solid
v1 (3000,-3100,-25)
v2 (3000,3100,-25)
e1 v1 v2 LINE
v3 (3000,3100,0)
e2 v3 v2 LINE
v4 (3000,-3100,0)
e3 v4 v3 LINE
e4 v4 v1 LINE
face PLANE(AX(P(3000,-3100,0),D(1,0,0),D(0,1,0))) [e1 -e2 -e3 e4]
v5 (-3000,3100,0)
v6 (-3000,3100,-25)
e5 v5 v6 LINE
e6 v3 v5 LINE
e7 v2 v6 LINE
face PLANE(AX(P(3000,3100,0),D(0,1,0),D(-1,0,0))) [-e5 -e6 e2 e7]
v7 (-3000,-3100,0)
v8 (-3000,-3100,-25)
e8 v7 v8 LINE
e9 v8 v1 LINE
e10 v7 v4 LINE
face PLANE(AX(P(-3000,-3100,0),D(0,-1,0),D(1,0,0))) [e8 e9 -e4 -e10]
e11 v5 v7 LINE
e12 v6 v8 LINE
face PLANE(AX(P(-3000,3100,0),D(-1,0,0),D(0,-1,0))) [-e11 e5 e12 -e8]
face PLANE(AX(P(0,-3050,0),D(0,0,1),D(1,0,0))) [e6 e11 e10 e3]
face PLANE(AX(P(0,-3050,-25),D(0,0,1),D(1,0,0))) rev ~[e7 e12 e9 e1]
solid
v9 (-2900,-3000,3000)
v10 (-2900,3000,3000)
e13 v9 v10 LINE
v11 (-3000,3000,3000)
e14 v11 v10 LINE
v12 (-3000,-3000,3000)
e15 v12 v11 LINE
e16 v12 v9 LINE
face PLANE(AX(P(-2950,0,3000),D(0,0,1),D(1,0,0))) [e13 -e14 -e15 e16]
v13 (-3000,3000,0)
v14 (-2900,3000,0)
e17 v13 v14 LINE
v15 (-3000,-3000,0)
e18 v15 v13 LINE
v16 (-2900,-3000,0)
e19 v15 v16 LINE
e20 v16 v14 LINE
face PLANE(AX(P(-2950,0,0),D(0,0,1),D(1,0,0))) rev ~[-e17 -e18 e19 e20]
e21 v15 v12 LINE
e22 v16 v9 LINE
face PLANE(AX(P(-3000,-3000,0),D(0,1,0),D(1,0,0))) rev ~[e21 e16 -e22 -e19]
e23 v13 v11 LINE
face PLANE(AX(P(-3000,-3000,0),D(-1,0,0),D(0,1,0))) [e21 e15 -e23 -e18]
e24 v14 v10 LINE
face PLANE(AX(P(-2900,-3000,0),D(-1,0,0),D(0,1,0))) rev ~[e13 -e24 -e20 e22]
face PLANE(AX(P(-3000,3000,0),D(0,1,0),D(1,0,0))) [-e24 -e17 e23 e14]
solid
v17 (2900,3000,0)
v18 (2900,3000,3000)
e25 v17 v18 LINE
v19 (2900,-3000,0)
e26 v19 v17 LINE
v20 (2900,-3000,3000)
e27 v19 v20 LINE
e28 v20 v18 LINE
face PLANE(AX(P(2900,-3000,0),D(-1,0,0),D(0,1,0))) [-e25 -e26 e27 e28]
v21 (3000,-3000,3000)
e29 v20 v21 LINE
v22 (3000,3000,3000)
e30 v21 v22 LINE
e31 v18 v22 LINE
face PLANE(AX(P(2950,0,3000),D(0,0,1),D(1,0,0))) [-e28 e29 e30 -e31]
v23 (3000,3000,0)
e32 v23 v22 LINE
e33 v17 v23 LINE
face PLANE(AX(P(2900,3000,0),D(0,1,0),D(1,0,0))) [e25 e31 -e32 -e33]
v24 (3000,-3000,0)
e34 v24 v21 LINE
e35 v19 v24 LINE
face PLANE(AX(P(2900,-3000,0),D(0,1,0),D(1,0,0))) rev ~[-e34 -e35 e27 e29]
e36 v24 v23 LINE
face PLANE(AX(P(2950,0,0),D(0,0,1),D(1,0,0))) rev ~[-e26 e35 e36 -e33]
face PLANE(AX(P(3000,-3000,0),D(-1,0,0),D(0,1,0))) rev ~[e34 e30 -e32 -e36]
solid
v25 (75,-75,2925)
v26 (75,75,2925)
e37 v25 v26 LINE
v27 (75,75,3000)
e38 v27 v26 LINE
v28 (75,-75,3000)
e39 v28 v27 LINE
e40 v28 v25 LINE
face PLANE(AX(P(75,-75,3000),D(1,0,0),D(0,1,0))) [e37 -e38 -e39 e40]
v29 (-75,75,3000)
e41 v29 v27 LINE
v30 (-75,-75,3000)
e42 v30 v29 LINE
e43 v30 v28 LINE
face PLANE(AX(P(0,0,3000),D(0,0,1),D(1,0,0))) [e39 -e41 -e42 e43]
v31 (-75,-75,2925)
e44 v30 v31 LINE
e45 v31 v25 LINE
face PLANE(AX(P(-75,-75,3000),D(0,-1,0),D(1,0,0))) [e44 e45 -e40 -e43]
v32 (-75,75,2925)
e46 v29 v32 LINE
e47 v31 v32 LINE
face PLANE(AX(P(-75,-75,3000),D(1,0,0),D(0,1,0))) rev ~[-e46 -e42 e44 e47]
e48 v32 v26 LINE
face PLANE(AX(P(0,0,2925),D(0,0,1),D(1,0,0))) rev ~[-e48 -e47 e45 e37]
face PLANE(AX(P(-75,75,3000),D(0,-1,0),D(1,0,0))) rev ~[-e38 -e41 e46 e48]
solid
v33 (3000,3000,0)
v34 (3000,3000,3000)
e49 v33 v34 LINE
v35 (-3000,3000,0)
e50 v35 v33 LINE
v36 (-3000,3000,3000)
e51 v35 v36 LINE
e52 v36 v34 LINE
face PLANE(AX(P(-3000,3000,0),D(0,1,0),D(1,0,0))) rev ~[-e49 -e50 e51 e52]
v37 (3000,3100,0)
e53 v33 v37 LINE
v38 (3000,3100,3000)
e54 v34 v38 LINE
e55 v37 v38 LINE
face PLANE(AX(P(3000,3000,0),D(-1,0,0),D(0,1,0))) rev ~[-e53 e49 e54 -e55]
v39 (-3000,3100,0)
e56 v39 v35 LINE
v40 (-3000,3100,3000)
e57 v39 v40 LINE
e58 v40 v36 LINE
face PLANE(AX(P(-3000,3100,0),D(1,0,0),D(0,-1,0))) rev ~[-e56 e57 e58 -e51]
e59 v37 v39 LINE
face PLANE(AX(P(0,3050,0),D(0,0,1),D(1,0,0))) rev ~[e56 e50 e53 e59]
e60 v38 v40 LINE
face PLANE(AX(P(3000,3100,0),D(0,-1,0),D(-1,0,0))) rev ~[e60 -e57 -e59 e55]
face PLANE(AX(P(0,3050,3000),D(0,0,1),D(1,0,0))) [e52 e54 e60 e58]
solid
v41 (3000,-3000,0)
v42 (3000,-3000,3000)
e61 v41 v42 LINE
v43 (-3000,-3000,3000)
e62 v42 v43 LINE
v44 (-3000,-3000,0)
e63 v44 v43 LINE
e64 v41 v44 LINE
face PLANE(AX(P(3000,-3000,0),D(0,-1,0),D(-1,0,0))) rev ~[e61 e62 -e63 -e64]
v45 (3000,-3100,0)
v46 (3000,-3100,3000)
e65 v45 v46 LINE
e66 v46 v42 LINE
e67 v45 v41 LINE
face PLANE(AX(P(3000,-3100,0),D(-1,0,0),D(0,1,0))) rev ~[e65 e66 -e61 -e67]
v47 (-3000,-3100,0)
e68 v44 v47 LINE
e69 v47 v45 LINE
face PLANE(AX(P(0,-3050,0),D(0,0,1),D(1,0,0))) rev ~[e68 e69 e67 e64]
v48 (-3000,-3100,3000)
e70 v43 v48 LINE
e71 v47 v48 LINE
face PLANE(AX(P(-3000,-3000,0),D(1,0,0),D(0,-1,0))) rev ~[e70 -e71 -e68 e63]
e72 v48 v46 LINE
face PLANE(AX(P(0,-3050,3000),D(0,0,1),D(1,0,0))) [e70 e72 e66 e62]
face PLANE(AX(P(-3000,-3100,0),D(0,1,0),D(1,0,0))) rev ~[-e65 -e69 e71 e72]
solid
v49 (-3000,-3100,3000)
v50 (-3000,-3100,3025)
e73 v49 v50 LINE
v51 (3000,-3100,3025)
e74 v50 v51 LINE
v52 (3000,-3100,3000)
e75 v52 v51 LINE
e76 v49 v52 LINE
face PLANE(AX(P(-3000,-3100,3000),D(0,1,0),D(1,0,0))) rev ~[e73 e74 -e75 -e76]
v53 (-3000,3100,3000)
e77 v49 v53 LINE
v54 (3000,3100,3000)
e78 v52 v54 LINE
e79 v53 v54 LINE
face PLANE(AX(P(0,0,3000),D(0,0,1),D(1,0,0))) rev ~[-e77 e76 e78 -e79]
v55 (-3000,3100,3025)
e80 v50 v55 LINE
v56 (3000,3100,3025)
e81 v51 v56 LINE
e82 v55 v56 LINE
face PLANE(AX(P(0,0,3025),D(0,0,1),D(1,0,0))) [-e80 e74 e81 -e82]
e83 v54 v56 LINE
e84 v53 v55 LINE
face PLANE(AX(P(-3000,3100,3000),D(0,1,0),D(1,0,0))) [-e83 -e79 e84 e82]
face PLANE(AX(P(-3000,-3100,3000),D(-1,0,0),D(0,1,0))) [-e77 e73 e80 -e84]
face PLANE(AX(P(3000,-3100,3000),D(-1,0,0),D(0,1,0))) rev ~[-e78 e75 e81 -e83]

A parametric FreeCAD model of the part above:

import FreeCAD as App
import Part
import Sketcher

V = App.Vector

doc = App.newDocument("Part")
body = doc.addObject("PartDesign::Body", "Body")

# Sketch on XY plane
sketch1 = body.newObject("Sketcher::SketchObject", "Sketch")
sketch1.AttachmentSupport = (doc.getObject("XY_Plane"), [""])
sketch1.MapMode = "FlatFace"
sketch1.addGeometry(Part.LineSegment(V(-3000, 3100, 0), V(-3000, 3000, 0)), False)
sketch1.addGeometry(Part.LineSegment(V(-3000, 3000, 0), V(3000, 3000, 0)), False)
sketch1.addGeometry(Part.LineSegment(V(3000, 3000, 0), V(3000, 3100, 0)), False)
sketch1.addGeometry(Part.LineSegment(V(3000, 3100, 0), V(-3000, 3100, 0)), False)
sketch1.addConstraint(Sketcher.Constraint("Coincident", 0, 2, 1, 1))
sketch1.addConstraint(Sketcher.Constraint("Coincident", 1, 2, 2, 1))
sketch1.addConstraint(Sketcher.Constraint("Coincident", 2, 2, 3, 1))
sketch1.addConstraint(Sketcher.Constraint("Coincident", 3, 2, 0, 1))
sketch1.addConstraint(Sketcher.Constraint("Vertical", 0))
sketch1.addConstraint(Sketcher.Constraint("Horizontal", 1))
sketch1.addConstraint(Sketcher.Constraint("Vertical", 2))
sketch1.addConstraint(Sketcher.Constraint("Horizontal", 3))
sketch1.addConstraint(Sketcher.Constraint("DistanceX", 1, 1, 1, 2, 6000.0))
sketch1.addConstraint(Sketcher.Constraint("DistanceY", 0, 2, 0, 1, 100.0))
sketch1.addConstraint(Sketcher.Constraint("DistanceX", 0, 2, -1, 1, 3000.0))
sketch1.addConstraint(Sketcher.Constraint("DistanceY", -1, 1, 0, 2, 3000.0))
pad1 = body.newObject("PartDesign::Pad", "Pad")
pad1.Profile = sketch1
pad1.Length = 3000
body2 = doc.addObject("PartDesign::Body", "Body001")

# Sketch on XY plane
sketch2 = body2.newObject("Sketcher::SketchObject", "Sketch001")
sketch2.AttachmentSupport = (doc.getObject("XY_Plane001"), [""])
sketch2.MapMode = "FlatFace"
sketch2.addGeometry(Part.LineSegment(V(-3000, 3000, 0), V(-3000, -3000, 0)), False)
sketch2.addGeometry(Part.LineSegment(V(-3000, -3000, 0), V(-2900, -3000, 0)), False)
sketch2.addGeometry(Part.LineSegment(V(-2900, -3000, 0), V(-2900, 3000, 0)), False)
sketch2.addGeometry(Part.LineSegment(V(-2900, 3000, 0), V(-3000, 3000, 0)), False)
sketch2.addConstraint(Sketcher.Constraint("Coincident", 0, 2, 1, 1))
sketch2.addConstraint(Sketcher.Constraint("Coincident", 1, 2, 2, 1))
sketch2.addConstraint(Sketcher.Constraint("Coincident", 2, 2, 3, 1))
sketch2.addConstraint(Sketcher.Constraint("Coincident", 3, 2, 0, 1))
sketch2.addConstraint(Sketcher.Constraint("Vertical", 0))
sketch2.addConstraint(Sketcher.Constraint("Horizontal", 1))
sketch2.addConstraint(Sketcher.Constraint("Vertical", 2))
sketch2.addConstraint(Sketcher.Constraint("Horizontal", 3))
sketch2.addConstraint(Sketcher.Constraint("DistanceX", 1, 1, 1, 2, 100.0))
sketch2.addConstraint(Sketcher.Constraint("DistanceY", 0, 2, 0, 1, 6000.0))
sketch2.addConstraint(Sketcher.Constraint("DistanceX", 0, 2, -1, 1, 3000.0))
sketch2.addConstraint(Sketcher.Constraint("DistanceY", 0, 2, -1, 1, 3000.0))
pad2 = body2.newObject("PartDesign::Pad", "Pad001")
pad2.Profile = sketch2
pad2.Length = 3000
body3 = doc.addObject("PartDesign::Body", "Body002")

# Sketch on XY plane
sketch3 = body3.newObject("Sketcher::SketchObject", "Sketch002")
sketch3.AttachmentSupport = (doc.getObject("XY_Plane002"), [""])
sketch3.MapMode = "FlatFace"
sketch3.addGeometry(Part.LineSegment(V(-3000, -3000, 0), V(-3000, -3100, 0)), False)
sketch3.addGeometry(Part.LineSegment(V(-3000, -3100, 0), V(3000, -3100, 0)), False)
sketch3.addGeometry(Part.LineSegment(V(3000, -3100, 0), V(3000, -3000, 0)), False)
sketch3.addGeometry(Part.LineSegment(V(3000, -3000, 0), V(-3000, -3000, 0)), False)
sketch3.addConstraint(Sketcher.Constraint("Coincident", 0, 2, 1, 1))
sketch3.addConstraint(Sketcher.Constraint("Coincident", 1, 2, 2, 1))
sketch3.addConstraint(Sketcher.Constraint("Coincident", 2, 2, 3, 1))
sketch3.addConstraint(Sketcher.Constraint("Coincident", 3, 2, 0, 1))
sketch3.addConstraint(Sketcher.Constraint("Vertical", 0))
sketch3.addConstraint(Sketcher.Constraint("Horizontal", 1))
sketch3.addConstraint(Sketcher.Constraint("Vertical", 2))
sketch3.addConstraint(Sketcher.Constraint("Horizontal", 3))
sketch3.addConstraint(Sketcher.Constraint("DistanceX", 1, 1, 1, 2, 6000.0))
sketch3.addConstraint(Sketcher.Constraint("DistanceY", 0, 2, 0, 1, 100.0))
sketch3.addConstraint(Sketcher.Constraint("DistanceX", 0, 2, -1, 1, 3000.0))
sketch3.addConstraint(Sketcher.Constraint("DistanceY", 0, 2, -1, 1, 3100.0))
pad3 = body3.newObject("PartDesign::Pad", "Pad002")
pad3.Profile = sketch3
pad3.Length = 3000
body4 = doc.addObject("PartDesign::Body", "Body003")

# Sketch on XY plane
sketch4 = body4.newObject("Sketcher::SketchObject", "Sketch003")
sketch4.AttachmentSupport = (doc.getObject("XY_Plane003"), [""])
sketch4.MapMode = "FlatFace"
sketch4.addGeometry(Part.LineSegment(V(2900, 3000, 0), V(2900, -3000, 0)), False)
sketch4.addGeometry(Part.LineSegment(V(2900, -3000, 0), V(3000, -3000, 0)), False)
sketch4.addGeometry(Part.LineSegment(V(3000, -3000, 0), V(3000, 3000, 0)), False)
sketch4.addGeometry(Part.LineSegment(V(3000, 3000, 0), V(2900, 3000, 0)), False)
sketch4.addConstraint(Sketcher.Constraint("Coincident", 0, 2, 1, 1))
sketch4.addConstraint(Sketcher.Constraint("Coincident", 1, 2, 2, 1))
sketch4.addConstraint(Sketcher.Constraint("Coincident", 2, 2, 3, 1))
sketch4.addConstraint(Sketcher.Constraint("Coincident", 3, 2, 0, 1))
sketch4.addConstraint(Sketcher.Constraint("Vertical", 0))
sketch4.addConstraint(Sketcher.Constraint("Horizontal", 1))
sketch4.addConstraint(Sketcher.Constraint("Vertical", 2))
sketch4.addConstraint(Sketcher.Constraint("Horizontal", 3))
sketch4.addConstraint(Sketcher.Constraint("DistanceX", 1, 1, 1, 2, 100.0))
sketch4.addConstraint(Sketcher.Constraint("DistanceY", 0, 2, 0, 1, 6000.0))
sketch4.addConstraint(Sketcher.Constraint("DistanceX", -1, 1, 0, 2, 2900.0))
sketch4.addConstraint(Sketcher.Constraint("DistanceY", 0, 2, -1, 1, 3000.0))
pad4 = body4.newObject("PartDesign::Pad", "Pad003")
pad4.Profile = sketch4
pad4.Length = 3000
body5 = doc.addObject("PartDesign::Body", "Body004")

# Sketch on XY plane
sketch5 = body5.newObject("Sketcher::SketchObject", "Sketch004")
sketch5.AttachmentSupport = (doc.getObject("XY_Plane004"), [""])
sketch5.MapMode = "FlatFace"
sketch5.addGeometry(Part.LineSegment(V(-3000, -3100, 0), V(3000, -3100, 0)), False)
sketch5.addGeometry(Part.LineSegment(V(3000, -3100, 0), V(3000, 3100, 0)), False)
sketch5.addGeometry(Part.LineSegment(V(3000, 3100, 0), V(-3000, 3100, 0)), False)
sketch5.addGeometry(Part.LineSegment(V(-3000, 3100, 0), V(-3000, -3100, 0)), False)
sketch5.addConstraint(Sketcher.Constraint("Coincident", 0, 2, 1, 1))
sketch5.addConstraint(Sketcher.Constraint("Coincident", 1, 2, 2, 1))
sketch5.addConstraint(Sketcher.Constraint("Coincident", 2, 2, 3, 1))
sketch5.addConstraint(Sketcher.Constraint("Coincident", 3, 2, 0, 1))
sketch5.addConstraint(Sketcher.Constraint("Horizontal", 0))
sketch5.addConstraint(Sketcher.Constraint("Vertical", 1))
sketch5.addConstraint(Sketcher.Constraint("Horizontal", 2))
sketch5.addConstraint(Sketcher.Constraint("Vertical", 3))
sketch5.addConstraint(Sketcher.Constraint("Symmetric", 0, 2, 2, 2, -1, 1))
sketch5.addConstraint(Sketcher.Constraint("DistanceX", 0, 1, 0, 2, 6000.0))
sketch5.addConstraint(Sketcher.Constraint("DistanceY", 1, 1, 1, 2, 6200.0))
pad5 = body5.newObject("PartDesign::Pad", "Pad004")
pad5.Profile = sketch5
pad5.Length = 25
pad5.Reversed = True
body6 = doc.addObject("PartDesign::Body", "Body005")

# Sketch on XY plane
sketch6 = body6.newObject("Sketcher::SketchObject", "Sketch005")
sketch6.AttachmentSupport = (doc.getObject("XY_Plane005"), [""])
sketch6.MapMode = "FlatFace"
sketch6.AttachmentOffset = App.Placement(V(0, 0, 3000), App.Rotation())
sketch6.addGeometry(Part.LineSegment(V(-3000, 3100, 0), V(-3000, -3100, 0)), False)
sketch6.addGeometry(Part.LineSegment(V(-3000, -3100, 0), V(3000, -3100, 0)), False)
sketch6.addGeometry(Part.LineSegment(V(3000, -3100, 0), V(3000, 3100, 0)), False)
sketch6.addGeometry(Part.LineSegment(V(3000, 3100, 0), V(-3000, 3100, 0)), False)
sketch6.addConstraint(Sketcher.Constraint("Coincident", 0, 2, 1, 1))
sketch6.addConstraint(Sketcher.Constraint("Coincident", 1, 2, 2, 1))
sketch6.addConstraint(Sketcher.Constraint("Coincident", 2, 2, 3, 1))
sketch6.addConstraint(Sketcher.Constraint("Coincident", 3, 2, 0, 1))
sketch6.addConstraint(Sketcher.Constraint("Vertical", 0))
sketch6.addConstraint(Sketcher.Constraint("Horizontal", 1))
sketch6.addConstraint(Sketcher.Constraint("Vertical", 2))
sketch6.addConstraint(Sketcher.Constraint("Horizontal", 3))
sketch6.addConstraint(Sketcher.Constraint("Symmetric", 0, 2, 2, 2, -1, 1))
sketch6.addConstraint(Sketcher.Constraint("DistanceX", 1, 1, 1, 2, 6000.0))
sketch6.addConstraint(Sketcher.Constraint("DistanceY", 0, 2, 0, 1, 6200.0))
pad6 = body6.newObject("PartDesign::Pad", "Pad005")
pad6.Profile = sketch6
pad6.Length = 25
body7 = doc.addObject("PartDesign::Body", "Body006")

# Sketch on XY plane
sketch7 = body7.newObject("Sketcher::SketchObject", "Sketch006")
sketch7.AttachmentSupport = (doc.getObject("XY_Plane006"), [""])
sketch7.MapMode = "FlatFace"
sketch7.AttachmentOffset = App.Placement(V(0, 0, 3000), App.Rotation())
sketch7.addGeometry(Part.LineSegment(V(-75, 75, 0), V(-75, -75, 0)), False)
sketch7.addGeometry(Part.LineSegment(V(-75, -75, 0), V(75, -75, 0)), False)
sketch7.addGeometry(Part.LineSegment(V(75, -75, 0), V(75, 75, 0)), False)
sketch7.addGeometry(Part.LineSegment(V(75, 75, 0), V(-75, 75, 0)), False)
sketch7.addConstraint(Sketcher.Constraint("Coincident", 0, 2, 1, 1))
sketch7.addConstraint(Sketcher.Constraint("Coincident", 1, 2, 2, 1))
sketch7.addConstraint(Sketcher.Constraint("Coincident", 2, 2, 3, 1))
sketch7.addConstraint(Sketcher.Constraint("Coincident", 3, 2, 0, 1))
sketch7.addConstraint(Sketcher.Constraint("Vertical", 0))
sketch7.addConstraint(Sketcher.Constraint("Horizontal", 1))
sketch7.addConstraint(Sketcher.Constraint("Vertical", 2))
sketch7.addConstraint(Sketcher.Constraint("Horizontal", 3))
sketch7.addConstraint(Sketcher.Constraint("Symmetric", 0, 2, 2, 2, -1, 1))
sketch7.addConstraint(Sketcher.Constraint("Equal", 3, 0))
sketch7.addConstraint(Sketcher.Constraint("DistanceX", 1, 1, 1, 2, 150.0))
pad7 = body7.newObject("PartDesign::Pad", "Pad006")
pad7.Profile = sketch7
pad7.Length = 75
pad7.Reversed = True

doc.recompute()
